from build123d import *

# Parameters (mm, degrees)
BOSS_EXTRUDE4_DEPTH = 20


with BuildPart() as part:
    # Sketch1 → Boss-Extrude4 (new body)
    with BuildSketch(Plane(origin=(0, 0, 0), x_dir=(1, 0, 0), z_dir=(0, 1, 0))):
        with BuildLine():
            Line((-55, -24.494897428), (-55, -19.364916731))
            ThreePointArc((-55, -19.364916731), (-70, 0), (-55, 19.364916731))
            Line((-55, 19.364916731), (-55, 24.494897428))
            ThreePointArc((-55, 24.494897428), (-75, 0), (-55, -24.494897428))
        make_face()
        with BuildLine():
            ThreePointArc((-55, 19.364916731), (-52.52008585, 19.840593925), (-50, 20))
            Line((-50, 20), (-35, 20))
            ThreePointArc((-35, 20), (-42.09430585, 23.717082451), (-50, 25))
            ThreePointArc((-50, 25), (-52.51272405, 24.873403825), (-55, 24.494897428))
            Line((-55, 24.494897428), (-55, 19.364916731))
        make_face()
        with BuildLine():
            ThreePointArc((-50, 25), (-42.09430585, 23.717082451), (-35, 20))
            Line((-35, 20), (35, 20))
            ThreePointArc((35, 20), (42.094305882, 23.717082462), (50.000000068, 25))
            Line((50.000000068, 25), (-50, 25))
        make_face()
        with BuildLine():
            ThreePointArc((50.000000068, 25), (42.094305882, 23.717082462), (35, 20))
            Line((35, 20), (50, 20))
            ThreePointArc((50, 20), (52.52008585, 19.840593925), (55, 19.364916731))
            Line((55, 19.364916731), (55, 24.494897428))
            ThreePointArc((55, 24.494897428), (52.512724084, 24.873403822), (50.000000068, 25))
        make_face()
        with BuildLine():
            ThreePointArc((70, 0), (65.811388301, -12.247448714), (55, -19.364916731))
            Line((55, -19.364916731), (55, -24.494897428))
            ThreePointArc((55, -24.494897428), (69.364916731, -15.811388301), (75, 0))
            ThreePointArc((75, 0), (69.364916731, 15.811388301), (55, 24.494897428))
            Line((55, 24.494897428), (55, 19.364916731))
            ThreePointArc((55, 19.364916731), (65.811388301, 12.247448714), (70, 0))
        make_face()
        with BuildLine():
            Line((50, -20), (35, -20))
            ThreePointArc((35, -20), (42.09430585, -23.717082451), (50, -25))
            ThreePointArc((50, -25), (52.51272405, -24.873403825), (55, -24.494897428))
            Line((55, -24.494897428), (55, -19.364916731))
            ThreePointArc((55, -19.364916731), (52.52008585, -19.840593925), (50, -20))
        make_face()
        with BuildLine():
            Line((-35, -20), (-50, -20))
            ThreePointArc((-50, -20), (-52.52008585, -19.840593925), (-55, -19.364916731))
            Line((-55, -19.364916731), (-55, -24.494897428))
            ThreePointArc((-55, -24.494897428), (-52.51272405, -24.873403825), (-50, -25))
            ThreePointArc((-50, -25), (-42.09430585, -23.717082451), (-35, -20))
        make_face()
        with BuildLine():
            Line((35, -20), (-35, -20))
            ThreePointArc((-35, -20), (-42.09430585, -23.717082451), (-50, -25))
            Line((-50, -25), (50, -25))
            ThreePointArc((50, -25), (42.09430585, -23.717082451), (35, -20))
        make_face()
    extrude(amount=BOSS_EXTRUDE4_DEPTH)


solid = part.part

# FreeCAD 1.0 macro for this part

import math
import FreeCAD as App
import Part
import Sketcher
Q = App.Units.Quantity

doc = App.newDocument("Part")
body = doc.addObject("PartDesign::Body", "Body")

# Sketch on XZ plane
sketch1 = doc.addObject("Sketcher::SketchObject", "Sketch")
body.addObject(sketch1)
sketch1.AttachmentSupport = (doc.XZ_Plane, [""])
sketch1.MapMode = "FlatFace"
sketch1.addGeometry([
    Part.ArcOfCircle(Part.Circle(App.Vector(50, 0, 0), App.Vector(0, 0, 1), 25), math.radians(78.46), math.radians(90)),  # 0
    Part.ArcOfCircle(Part.Circle(App.Vector(50, 0, 0), App.Vector(0, 0, 1), 25), math.radians(0), math.radians(78)),  # 1
    Part.ArcOfCircle(Part.Circle(App.Vector(50, 0, 0), App.Vector(0, 0, 1), 25), math.radians(-78), math.radians(0)),  # 2
    Part.ArcOfCircle(Part.Circle(App.Vector(50, 0, 0), App.Vector(0, 0, 1), 25), math.radians(-90), math.radians(-78.46)),  # 3
    Part.LineSegment(App.Vector(50, -25, 0), App.Vector(-50, -25, 0)),  # 4
    Part.ArcOfCircle(Part.Circle(App.Vector(-50, 0, 0), App.Vector(0, 0, 1), 25), math.radians(-101.54), math.radians(-90)),  # 5
    Part.ArcOfCircle(Part.Circle(App.Vector(-50, 0, 0), App.Vector(0, 0, 1), 25), math.radians(102), math.radians(258)),  # 6
    Part.ArcOfCircle(Part.Circle(App.Vector(-50, 0, 0), App.Vector(0, 0, 1), 25), math.radians(90), math.radians(101.54)),  # 7
    Part.LineSegment(App.Vector(-50, 25, 0), App.Vector(50, 25, 0)),  # 8
    Part.ArcOfCircle(Part.Circle(App.Vector(-50, 0, 0), App.Vector(0, 0, 1), 20), math.radians(104), math.radians(256)),  # 9
    Part.ArcOfCircle(Part.Circle(App.Vector(-50, 0, 0), App.Vector(0, 0, 1), 20), math.radians(-104.48), math.radians(-90)),  # 10
    Part.LineSegment(App.Vector(-50, -20, 0), App.Vector(50, -20, 0)),  # 11
    Part.ArcOfCircle(Part.Circle(App.Vector(50, 0, 0), App.Vector(0, 0, 1), 20), math.radians(-90), math.radians(-75.52)),  # 12
    Part.ArcOfCircle(Part.Circle(App.Vector(50, 0, 0), App.Vector(0, 0, 1), 20), math.radians(-76), math.radians(0)),  # 13
    Part.ArcOfCircle(Part.Circle(App.Vector(50, 0, 0), App.Vector(0, 0, 1), 20), math.radians(0), math.radians(76)),  # 14
    Part.ArcOfCircle(Part.Circle(App.Vector(50, 0, 0), App.Vector(0, 0, 1), 20), math.radians(75.52), math.radians(90)),  # 15
    Part.LineSegment(App.Vector(50, 20, 0), App.Vector(-50, 20, 0)),  # 16
    Part.ArcOfCircle(Part.Circle(App.Vector(-50, 0, 0), App.Vector(0, 0, 1), 20), math.radians(90), math.radians(104.48)),  # 17
], False)
sketch1.addConstraint([
    Sketcher.Constraint("Tangent", 0, 1, 1, 2),
    Sketcher.Constraint("Tangent", 1, 1, 2, 2),
    Sketcher.Constraint("Tangent", 2, 1, 3, 2),
    Sketcher.Constraint("Tangent", 3, 1, 4, 1),
    Sketcher.Constraint("Tangent", 4, 2, 5, 2),
    Sketcher.Constraint("Tangent", 5, 1, 6, 2),
    Sketcher.Constraint("Tangent", 6, 1, 7, 2),
    Sketcher.Constraint("Tangent", 7, 1, 8, 1),
    Sketcher.Constraint("Tangent", 8, 2, 0, 2),
    Sketcher.Constraint("Tangent", 9, 2, 10, 1),
    Sketcher.Constraint("Tangent", 10, 2, 11, 1),
    Sketcher.Constraint("Tangent", 11, 2, 12, 1),
    Sketcher.Constraint("Tangent", 12, 2, 13, 1),
    Sketcher.Constraint("Tangent", 13, 2, 14, 1),
    Sketcher.Constraint("Tangent", 14, 2, 15, 1),
    Sketcher.Constraint("Tangent", 15, 2, 16, 1),
    Sketcher.Constraint("Tangent", 16, 2, 17, 1),
    Sketcher.Constraint("Tangent", 17, 2, 9, 1),
    Sketcher.Constraint("Horizontal", 4),
    Sketcher.Constraint("Horizontal", 8),
    Sketcher.Constraint("Horizontal", 11),
    Sketcher.Constraint("Horizontal", 16),
    Sketcher.Constraint("Coincident", 2, 3, 0, 3),
    Sketcher.Constraint("Coincident", 7, 3, 5, 3),
    Sketcher.Constraint("Coincident", 9, 3, 5, 3),
    Sketcher.Constraint("Coincident", 12, 3, 0, 3),
    Sketcher.Constraint("Coincident", 14, 3, 0, 3),
    Sketcher.Constraint("Equal", 2, 3),
    Sketcher.Constraint("Equal", 9, 10),
    Sketcher.Constraint("Equal", 14, 15),
    Sketcher.Constraint("Symmetric", 0, 3, 5, 3, -1, 1),
    Sketcher.Constraint("PointOnObject", 1, 1, -1),
    Sketcher.Constraint("PointOnObject", 13, 2, -1),
    Sketcher.Constraint("Horizontal", 2, 1, 5, 1),
    Sketcher.Constraint("Horizontal", 0, 1, 6, 1),
    Sketcher.Constraint("Horizontal", 9, 2, 12, 2),
    Sketcher.Constraint("Horizontal", 14, 2, 17, 2),
    Sketcher.Constraint("Vertical", 0, 1, 2, 1),
    Sketcher.Constraint("Vertical", 6, 1, 9, 2),
    Sketcher.Constraint("Vertical", 12, 2, 14, 2),
    Sketcher.Constraint("Radius", 0, Q("25 mm")),
    Sketcher.Constraint("Radius", 9, Q("20 mm")),
    Sketcher.Constraint("DistanceX", 4, 2, 4, 1, Q("100 mm")),
    Sketcher.Constraint("DistanceX", -1, 1, 0, 1, Q("55 mm")),
])
pad1 = doc.addObject("PartDesign::Pad", "Pad")
body.addObject(pad1)
pad1.Profile = sketch1
pad1.Length = 20
pad1.Reversed = True

doc.recompute()
